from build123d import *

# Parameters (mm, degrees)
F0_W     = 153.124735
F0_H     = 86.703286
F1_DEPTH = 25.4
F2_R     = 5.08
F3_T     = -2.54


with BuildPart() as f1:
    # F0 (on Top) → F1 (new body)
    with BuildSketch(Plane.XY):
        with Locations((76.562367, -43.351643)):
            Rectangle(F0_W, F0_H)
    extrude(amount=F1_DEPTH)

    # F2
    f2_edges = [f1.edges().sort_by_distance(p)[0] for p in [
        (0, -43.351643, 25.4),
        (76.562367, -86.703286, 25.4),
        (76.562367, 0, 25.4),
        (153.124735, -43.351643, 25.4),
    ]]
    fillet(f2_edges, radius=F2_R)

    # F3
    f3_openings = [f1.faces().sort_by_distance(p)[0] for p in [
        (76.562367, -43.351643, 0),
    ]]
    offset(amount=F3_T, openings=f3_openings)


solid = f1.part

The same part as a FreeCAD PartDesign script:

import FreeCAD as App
import Part
import Sketcher
from FreeCAD import Vector
Q = App.Units.Quantity


def edges_at(feature, points):
    """Names of the edges that pass closest to the given points."""
    edges = feature.Shape.Edges
    near = lambda p: min(range(len(edges)), key=lambda i: edges[i].distToShape(Part.Vertex(*p))[0])
    return sorted({f"Edge{near(p) + 1}" for p in points})


def faces_at(feature, points):
    """Names of the faces that lie closest to the given points."""
    faces = feature.Shape.Faces
    near = lambda p: min(range(len(faces)), key=lambda i: faces[i].distToShape(Part.Vertex(*p))[0])
    return sorted({f"Face{near(p) + 1}" for p in points})


def add_polygon(sketch, points):
    """Adds a closed chain of lines whose ends are joined by coincident constraints."""
    first, n = sketch.GeometryCount, len(points)
    for a, b in zip(points, points[1:] + points[:1]):
        sketch.addGeometry(Part.LineSegment(App.Vector(*a, 0), App.Vector(*b, 0)), False)
    for i in range(n):
        sketch.addConstraint(Sketcher.Constraint("Coincident", first + i, 2, first + (i + 1) % n, 1))

doc = App.newDocument("Part")
body = doc.addObject("PartDesign::Body", "Body")

# Sketch on XY plane
sketch1 = body.newObject("Sketcher::SketchObject", "Sketch")
sketch1.AttachmentSupport = (doc.getObject("XY_Plane"), [""])
sketch1.MapMode = "FlatFace"
add_polygon(sketch1, [(0, 0), (0, -87), (153, -87), (153, 0)])  # lines 0-3
sketch1.addConstraint([
    Sketcher.Constraint("Vertical", 0),
    Sketcher.Constraint("Horizontal", 1),
    Sketcher.Constraint("Vertical", 2),
    Sketcher.Constraint("Horizontal", 3),
    Sketcher.Constraint("Coincident", 3, 2, -1, 1),
    Sketcher.Constraint("DistanceX", 1, 1, 1, 2, Q("153.124735 mm")),
    Sketcher.Constraint("DistanceY", 0, 2, 0, 1, Q("86.703286 mm")),
])
pad1 = body.newObject("PartDesign::Pad", "Pad")
pad1.Profile = sketch1
pad1.Length = Q("1 in")
doc.recompute()

fillet = body.newObject("PartDesign::Fillet", "Fillet")
fillet.Base = (pad1, edges_at(pad1, [
    (0, -43.352, 25.4),
    (76.562, -86.703, 25.4),
    (76.562, 0, 25.4),
    (153.125, -43.352, 25.4),
]))
fillet.Radius = Q("0.2 in")
doc.recompute()

thickness = body.newObject("PartDesign::Thickness", "Thickness")
thickness.Base = (fillet, faces_at(fillet, [(76.562, -43.352, 0)]))
thickness.Value = Q("0.1 in")
thickness.Reversed = True
thickness.Join = "Arc"

doc.recompute()
